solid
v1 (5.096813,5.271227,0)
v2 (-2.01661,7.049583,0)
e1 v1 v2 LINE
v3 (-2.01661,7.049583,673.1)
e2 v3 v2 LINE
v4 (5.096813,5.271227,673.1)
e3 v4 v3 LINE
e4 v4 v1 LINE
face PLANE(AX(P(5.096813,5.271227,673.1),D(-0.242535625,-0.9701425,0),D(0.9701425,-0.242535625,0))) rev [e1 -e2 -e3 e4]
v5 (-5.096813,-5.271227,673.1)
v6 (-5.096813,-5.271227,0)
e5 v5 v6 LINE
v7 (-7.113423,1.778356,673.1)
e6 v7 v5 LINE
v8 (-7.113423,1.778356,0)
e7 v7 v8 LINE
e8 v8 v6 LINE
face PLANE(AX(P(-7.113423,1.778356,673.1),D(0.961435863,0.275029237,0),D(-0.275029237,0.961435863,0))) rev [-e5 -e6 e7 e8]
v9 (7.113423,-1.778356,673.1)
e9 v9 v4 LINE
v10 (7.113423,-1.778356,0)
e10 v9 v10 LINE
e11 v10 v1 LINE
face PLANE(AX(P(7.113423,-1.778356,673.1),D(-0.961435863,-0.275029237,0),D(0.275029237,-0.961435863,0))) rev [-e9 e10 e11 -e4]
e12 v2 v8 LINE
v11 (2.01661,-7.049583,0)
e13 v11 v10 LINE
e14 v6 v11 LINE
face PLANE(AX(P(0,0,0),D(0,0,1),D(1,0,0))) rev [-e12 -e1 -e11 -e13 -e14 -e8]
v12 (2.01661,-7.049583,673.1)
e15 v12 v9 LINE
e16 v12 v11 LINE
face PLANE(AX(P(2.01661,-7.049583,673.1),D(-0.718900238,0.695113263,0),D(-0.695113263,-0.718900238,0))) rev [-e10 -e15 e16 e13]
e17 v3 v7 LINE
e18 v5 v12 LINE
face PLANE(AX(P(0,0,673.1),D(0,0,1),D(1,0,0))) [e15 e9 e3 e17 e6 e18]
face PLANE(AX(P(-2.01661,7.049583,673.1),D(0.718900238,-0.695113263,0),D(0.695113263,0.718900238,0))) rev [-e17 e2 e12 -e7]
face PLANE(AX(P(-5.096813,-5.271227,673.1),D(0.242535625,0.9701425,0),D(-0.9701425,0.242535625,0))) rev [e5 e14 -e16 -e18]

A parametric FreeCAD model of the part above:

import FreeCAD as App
import Part
import Sketcher
from FreeCAD import Vector
Q = App.Units.Quantity

doc = App.newDocument("Part")
body = doc.addObject("PartDesign::Body", "Body")

# Sketch on XY plane
sketch1 = body.newObject("Sketcher::SketchObject", "Sketch")
sketch1.AttachmentSupport = (doc.getObject("XY_Plane"), [""])
sketch1.MapMode = "FlatFace"
sketch1.addGeometry([
    Part.LineSegment(Vector(-7, 2, 0), Vector(-5, -5, 0)),  # 0
    Part.LineSegment(Vector(-5, -5, 0), Vector(2, -7, 0)),  # 1
    Part.LineSegment(Vector(2, -7, 0), Vector(7, -2, 0)),  # 2
    Part.LineSegment(Vector(7, -2, 0), Vector(5, 5, 0)),  # 3
    Part.LineSegment(Vector(5, 5, 0), Vector(-2, 7, 0)),  # 4
    Part.LineSegment(Vector(-2, 7, 0), Vector(-7, 2, 0)),  # 5
], False)
sketch1.addConstraint([
    Sketcher.Constraint("Coincident", 0, 2, 1, 1),
    Sketcher.Constraint("Coincident", 1, 2, 2, 1),
    Sketcher.Constraint("Coincident", 2, 2, 3, 1),
    Sketcher.Constraint("Coincident", 3, 2, 4, 1),
    Sketcher.Constraint("Coincident", 4, 2, 5, 1),
    Sketcher.Constraint("Coincident", 5, 2, 0, 1),
    Sketcher.Constraint("Symmetric", 0, 2, 3, 2, -1, 1),
    Sketcher.Constraint("Symmetric", 1, 2, 4, 2, -1, 1),
    Sketcher.Constraint("Symmetric", 2, 2, 5, 2, -1, 1),
    Sketcher.Constraint("Equal", 0, 1),
    Sketcher.Constraint("Equal", 1, 2),
    Sketcher.Constraint("Distance", 0, 7.332348),
    Sketcher.Constraint("DistanceX", -1, 1, 1, 2, 2.01661),
    Sketcher.Constraint("DistanceY", 0, 2, 2, 2, 3.492871),
    Sketcher.Constraint("DistanceX", 3, 2, 2, 2, 2.01661),
])
pad1 = body.newObject("PartDesign::Pad", "Pad")
pad1.Profile = sketch1
pad1.Length = Q("26.5 in")

doc.recompute()
